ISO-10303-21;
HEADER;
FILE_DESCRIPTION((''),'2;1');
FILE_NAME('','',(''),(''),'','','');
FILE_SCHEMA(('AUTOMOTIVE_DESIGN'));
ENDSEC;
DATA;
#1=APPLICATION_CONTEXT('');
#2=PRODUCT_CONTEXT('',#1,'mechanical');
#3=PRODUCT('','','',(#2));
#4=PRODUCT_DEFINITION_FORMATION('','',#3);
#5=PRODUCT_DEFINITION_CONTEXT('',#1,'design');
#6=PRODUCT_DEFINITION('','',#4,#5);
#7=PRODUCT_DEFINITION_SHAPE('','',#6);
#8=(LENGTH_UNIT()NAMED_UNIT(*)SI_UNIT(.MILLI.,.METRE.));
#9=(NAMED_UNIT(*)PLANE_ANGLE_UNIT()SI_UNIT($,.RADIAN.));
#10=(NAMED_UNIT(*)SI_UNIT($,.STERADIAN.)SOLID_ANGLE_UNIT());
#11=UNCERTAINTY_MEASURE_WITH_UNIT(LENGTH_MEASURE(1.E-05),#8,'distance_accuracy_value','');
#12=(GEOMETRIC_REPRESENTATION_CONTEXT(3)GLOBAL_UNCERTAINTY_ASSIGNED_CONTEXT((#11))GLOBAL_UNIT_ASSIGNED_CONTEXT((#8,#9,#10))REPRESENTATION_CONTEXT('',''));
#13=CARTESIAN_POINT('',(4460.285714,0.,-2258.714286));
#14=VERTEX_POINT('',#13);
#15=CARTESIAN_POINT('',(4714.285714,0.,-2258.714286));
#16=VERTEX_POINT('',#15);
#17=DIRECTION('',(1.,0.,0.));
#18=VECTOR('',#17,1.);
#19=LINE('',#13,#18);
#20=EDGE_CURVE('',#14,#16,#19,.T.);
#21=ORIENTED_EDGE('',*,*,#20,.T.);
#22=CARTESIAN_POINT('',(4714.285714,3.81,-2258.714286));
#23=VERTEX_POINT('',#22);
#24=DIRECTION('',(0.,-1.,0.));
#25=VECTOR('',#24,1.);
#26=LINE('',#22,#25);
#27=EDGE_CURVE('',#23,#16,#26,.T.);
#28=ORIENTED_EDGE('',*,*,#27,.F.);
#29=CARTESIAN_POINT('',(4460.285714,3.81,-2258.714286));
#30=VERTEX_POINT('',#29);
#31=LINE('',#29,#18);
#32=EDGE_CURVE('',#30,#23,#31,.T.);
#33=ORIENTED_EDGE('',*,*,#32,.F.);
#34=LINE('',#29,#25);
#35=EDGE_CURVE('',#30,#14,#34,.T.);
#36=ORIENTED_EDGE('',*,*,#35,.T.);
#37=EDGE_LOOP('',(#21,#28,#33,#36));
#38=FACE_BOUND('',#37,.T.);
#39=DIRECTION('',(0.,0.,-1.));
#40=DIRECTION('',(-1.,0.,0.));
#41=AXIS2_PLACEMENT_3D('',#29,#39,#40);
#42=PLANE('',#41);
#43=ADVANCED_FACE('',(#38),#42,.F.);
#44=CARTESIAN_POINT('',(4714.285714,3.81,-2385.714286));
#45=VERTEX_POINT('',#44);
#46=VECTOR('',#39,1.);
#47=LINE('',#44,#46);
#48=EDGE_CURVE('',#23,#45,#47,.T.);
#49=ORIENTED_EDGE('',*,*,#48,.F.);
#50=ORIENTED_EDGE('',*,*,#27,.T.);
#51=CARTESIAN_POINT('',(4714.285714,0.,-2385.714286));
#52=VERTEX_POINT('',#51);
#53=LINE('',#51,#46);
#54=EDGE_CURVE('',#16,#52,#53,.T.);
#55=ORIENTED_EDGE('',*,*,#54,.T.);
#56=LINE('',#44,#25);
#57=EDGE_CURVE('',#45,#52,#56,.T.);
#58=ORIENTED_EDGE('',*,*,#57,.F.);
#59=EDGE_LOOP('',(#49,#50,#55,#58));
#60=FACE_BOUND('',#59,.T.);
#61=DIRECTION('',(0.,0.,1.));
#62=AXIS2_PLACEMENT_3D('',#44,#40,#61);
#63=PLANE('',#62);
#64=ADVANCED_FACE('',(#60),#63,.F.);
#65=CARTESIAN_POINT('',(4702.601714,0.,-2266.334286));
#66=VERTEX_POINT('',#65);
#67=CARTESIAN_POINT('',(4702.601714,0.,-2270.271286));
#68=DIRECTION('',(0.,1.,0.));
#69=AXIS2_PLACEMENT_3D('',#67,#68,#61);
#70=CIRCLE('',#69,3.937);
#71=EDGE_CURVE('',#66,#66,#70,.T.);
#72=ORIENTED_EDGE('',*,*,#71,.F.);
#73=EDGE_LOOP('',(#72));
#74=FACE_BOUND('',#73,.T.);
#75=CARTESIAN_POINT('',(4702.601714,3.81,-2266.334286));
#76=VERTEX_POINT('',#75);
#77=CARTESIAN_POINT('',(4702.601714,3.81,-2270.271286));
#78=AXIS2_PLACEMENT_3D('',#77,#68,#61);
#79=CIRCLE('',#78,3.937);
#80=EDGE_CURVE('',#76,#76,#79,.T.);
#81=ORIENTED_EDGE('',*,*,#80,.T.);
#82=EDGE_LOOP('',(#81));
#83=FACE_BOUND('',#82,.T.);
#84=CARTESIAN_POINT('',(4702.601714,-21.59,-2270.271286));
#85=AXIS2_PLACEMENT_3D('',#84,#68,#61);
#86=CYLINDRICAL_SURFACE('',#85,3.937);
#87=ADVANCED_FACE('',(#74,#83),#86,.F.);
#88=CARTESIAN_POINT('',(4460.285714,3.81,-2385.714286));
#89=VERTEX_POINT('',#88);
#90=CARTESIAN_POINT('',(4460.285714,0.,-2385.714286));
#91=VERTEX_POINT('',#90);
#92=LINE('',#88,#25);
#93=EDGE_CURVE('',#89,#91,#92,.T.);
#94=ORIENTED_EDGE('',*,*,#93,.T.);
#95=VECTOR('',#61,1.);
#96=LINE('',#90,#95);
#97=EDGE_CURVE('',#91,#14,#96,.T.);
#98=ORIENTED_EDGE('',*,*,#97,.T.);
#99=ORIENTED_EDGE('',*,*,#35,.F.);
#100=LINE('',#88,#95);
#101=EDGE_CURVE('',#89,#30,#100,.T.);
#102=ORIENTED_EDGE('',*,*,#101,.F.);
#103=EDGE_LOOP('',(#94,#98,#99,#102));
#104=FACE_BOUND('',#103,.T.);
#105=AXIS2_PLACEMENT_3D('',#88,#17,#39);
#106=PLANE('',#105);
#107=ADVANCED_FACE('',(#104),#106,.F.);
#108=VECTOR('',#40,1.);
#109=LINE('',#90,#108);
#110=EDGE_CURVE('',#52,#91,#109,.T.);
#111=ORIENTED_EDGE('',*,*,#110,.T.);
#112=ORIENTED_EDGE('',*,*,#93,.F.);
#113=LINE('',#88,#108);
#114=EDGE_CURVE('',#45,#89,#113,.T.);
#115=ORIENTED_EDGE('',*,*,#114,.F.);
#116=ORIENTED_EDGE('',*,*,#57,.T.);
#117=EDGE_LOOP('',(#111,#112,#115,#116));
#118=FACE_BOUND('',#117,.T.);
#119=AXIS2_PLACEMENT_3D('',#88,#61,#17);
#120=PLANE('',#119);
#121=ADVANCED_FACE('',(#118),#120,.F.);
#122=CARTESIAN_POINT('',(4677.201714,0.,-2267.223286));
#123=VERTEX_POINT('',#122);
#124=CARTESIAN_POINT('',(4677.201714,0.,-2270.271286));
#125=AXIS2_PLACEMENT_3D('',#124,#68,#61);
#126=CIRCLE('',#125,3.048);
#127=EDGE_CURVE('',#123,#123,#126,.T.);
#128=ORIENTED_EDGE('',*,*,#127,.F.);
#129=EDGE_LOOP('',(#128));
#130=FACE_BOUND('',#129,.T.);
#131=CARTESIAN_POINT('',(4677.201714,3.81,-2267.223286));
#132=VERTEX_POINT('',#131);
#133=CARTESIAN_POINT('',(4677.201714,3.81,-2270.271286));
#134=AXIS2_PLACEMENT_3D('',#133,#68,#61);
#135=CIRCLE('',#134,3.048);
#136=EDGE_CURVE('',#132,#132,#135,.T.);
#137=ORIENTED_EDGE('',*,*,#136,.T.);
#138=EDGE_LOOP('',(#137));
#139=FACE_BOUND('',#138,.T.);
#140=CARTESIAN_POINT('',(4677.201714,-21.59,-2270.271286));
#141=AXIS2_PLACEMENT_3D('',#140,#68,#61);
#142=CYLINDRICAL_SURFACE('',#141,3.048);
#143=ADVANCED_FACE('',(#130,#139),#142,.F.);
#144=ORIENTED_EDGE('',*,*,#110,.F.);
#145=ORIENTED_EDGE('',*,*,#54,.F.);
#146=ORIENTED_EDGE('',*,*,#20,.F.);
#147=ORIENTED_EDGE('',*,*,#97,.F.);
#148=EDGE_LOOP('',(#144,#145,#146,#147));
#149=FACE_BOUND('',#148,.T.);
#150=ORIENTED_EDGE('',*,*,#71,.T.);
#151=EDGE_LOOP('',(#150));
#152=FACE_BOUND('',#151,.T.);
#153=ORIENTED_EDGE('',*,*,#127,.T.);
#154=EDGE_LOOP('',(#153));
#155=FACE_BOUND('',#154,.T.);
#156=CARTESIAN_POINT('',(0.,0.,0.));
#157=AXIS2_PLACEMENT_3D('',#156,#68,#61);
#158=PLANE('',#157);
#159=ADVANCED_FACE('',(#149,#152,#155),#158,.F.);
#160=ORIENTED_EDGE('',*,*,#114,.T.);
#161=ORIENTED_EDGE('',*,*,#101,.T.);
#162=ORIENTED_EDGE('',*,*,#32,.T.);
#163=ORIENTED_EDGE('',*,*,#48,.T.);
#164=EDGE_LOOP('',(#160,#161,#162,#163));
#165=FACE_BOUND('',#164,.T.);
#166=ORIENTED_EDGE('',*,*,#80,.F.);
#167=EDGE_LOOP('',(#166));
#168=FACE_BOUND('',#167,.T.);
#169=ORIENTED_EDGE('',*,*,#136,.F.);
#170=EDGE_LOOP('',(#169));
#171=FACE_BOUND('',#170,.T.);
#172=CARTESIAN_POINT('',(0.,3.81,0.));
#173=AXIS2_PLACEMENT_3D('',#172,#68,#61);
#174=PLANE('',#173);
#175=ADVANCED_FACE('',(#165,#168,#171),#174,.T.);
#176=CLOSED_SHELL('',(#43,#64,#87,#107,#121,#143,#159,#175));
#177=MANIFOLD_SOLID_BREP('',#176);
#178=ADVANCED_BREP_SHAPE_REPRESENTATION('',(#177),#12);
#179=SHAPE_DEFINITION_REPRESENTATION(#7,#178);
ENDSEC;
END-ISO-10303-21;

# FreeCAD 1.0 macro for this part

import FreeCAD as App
import Part
import Sketcher
from FreeCAD import Vector
Q = App.Units.Quantity


def add_polygon(sketch, points):
    """Adds a closed chain of lines whose ends are joined by coincident constraints."""
    first, n = sketch.GeometryCount, len(points)
    for a, b in zip(points, points[1:] + points[:1]):
        sketch.addGeometry(Part.LineSegment(App.Vector(*a, 0), App.Vector(*b, 0)), False)
    for i in range(n):
        sketch.addConstraint(Sketcher.Constraint("Coincident", first + i, 2, first + (i + 1) % n, 1))

doc = App.newDocument("Part")
params = doc.addObject("Spreadsheet::Sheet", "Params")
for row, (alias, value) in enumerate([
    ("sketch1_width", "10 in"),
    ("sketch1_height", "5 in"),
    ("pad1_length", "0.15 in"),
    ("sketch2_diameter", "0.24 in"),
    ("sketch2_diameter2", "0.31 in"),
    ("pocket1_length", "1 in"),
], start=1):
    params.set(f"A{row}", alias)
    params.set(f"B{row}", "=" + value)
    params.setAlias(f"B{row}", alias)

body = doc.addObject("PartDesign::Body", "Body")

# Sketch on XZ plane
sketch1 = body.newObject("Sketcher::SketchObject", "Sketch")
sketch1.AttachmentSupport = (doc.getObject("XZ_Plane"), [""])
sketch1.MapMode = "FlatFace"
add_polygon(sketch1, [(4460.285714, -2385.714286), (4460.285714, -2258.714286), (4714.285714, -2258.714286), (4714.285714, -2385.714286)])  # lines 0-3
sketch1.addConstraint([
    Sketcher.Constraint("Vertical", 0),
    Sketcher.Constraint("Horizontal", 1),
    Sketcher.Constraint("Vertical", 2),
    Sketcher.Constraint("Horizontal", 3),
    Sketcher.Constraint("DistanceX", 1, 1, 1, 2, Q("10 in")),
    Sketcher.Constraint("DistanceY", 0, 1, 0, 2, Q("5 in")),
    Sketcher.Constraint("DistanceX", -1, 1, 0, 2, 4460.285714),
    Sketcher.Constraint("DistanceY", 0, 2, -1, 1, 2258.714286),
])
sketch1.setExpression("Constraints[8]", "Params.sketch1_width")
sketch1.setExpression("Constraints[9]", "Params.sketch1_height")
pad1 = body.newObject("PartDesign::Pad", "Pad")
pad1.Profile = sketch1
pad1.setExpression("Length", "Params.pad1_length")
pad1.Reversed = True

# Sketch on XZ plane
sketch2 = body.newObject("Sketcher::SketchObject", "Sketch001")
sketch2.AttachmentSupport = (doc.getObject("XZ_Plane"), [""])
sketch2.MapMode = "FlatFace"
sketch2.AttachmentOffset = App.Placement(Vector(0, 0, -0.15 * 25.4), App.Rotation())
sketch2.addGeometry([
    Part.Circle(Vector(4677.201714, -2270.271286, 0), Vector(0, 0, 1), 3.048),
    Part.Circle(Vector(4702.601714, -2270.271286, 0), Vector(0, 0, 1), 3.937),
], False)
sketch2.addConstraint([
    Sketcher.Constraint("Horizontal", 0, 3, 1, 3),
    Sketcher.Constraint("Diameter", 0, Q("0.24 in")),
    Sketcher.Constraint("Diameter", 1, Q("0.31 in")),
    Sketcher.Constraint("DistanceX", 0, 3, 1, 3, Q("1 in")),
    Sketcher.Constraint("DistanceX", -1, 1, 0, 3, 4677.201714),
    Sketcher.Constraint("DistanceY", 0, 3, -1, 1, 2270.271286),
])
sketch2.setExpression("Constraints[1]", "Params.sketch2_diameter")
sketch2.setExpression("Constraints[2]", "Params.sketch2_diameter2")
pocket1 = body.newObject("PartDesign::Pocket", "Pocket")
pocket1.Profile = sketch2
pocket1.setExpression("Length", "Params.pocket1_length")
pocket1.Reversed = True

doc.recompute()
